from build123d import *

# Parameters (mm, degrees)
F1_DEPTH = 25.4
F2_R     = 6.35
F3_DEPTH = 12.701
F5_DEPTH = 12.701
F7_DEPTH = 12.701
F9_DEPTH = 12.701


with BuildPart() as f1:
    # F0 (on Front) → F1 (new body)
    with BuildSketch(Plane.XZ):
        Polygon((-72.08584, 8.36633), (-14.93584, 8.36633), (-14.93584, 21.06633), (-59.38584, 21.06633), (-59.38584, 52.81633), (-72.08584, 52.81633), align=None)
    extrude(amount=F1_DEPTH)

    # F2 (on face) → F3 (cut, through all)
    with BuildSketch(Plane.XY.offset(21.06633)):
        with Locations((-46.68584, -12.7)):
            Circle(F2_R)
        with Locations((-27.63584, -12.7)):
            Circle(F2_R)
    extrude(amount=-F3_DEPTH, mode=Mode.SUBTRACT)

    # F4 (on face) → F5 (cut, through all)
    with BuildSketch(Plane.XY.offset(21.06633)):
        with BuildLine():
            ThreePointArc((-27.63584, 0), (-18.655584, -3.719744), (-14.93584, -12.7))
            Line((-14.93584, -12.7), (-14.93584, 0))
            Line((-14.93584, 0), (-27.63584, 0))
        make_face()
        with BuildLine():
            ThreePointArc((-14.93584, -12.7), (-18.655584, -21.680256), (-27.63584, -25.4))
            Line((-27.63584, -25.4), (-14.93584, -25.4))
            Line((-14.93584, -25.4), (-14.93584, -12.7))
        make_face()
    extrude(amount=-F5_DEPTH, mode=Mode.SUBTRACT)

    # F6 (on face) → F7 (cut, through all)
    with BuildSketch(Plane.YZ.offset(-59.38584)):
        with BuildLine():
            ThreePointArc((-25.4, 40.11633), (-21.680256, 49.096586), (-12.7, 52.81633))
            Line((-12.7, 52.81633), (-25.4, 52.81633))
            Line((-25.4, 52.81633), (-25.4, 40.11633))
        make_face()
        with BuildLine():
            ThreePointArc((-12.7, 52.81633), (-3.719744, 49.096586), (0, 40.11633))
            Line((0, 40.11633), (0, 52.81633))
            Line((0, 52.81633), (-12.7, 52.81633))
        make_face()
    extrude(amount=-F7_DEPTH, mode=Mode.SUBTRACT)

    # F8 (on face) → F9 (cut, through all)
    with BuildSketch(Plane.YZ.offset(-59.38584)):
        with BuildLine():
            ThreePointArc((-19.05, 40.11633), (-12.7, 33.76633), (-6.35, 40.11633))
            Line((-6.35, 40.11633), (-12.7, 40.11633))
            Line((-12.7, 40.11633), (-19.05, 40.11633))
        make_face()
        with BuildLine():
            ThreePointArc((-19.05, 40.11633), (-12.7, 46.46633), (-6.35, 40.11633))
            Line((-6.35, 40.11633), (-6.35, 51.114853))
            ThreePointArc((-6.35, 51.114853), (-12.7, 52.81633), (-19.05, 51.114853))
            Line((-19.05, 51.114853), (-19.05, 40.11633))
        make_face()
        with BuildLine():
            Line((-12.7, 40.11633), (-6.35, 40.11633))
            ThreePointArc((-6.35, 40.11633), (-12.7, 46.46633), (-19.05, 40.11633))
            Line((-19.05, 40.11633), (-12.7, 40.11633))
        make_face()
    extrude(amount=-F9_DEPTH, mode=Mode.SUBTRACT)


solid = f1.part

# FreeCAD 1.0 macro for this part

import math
import FreeCAD as App
import Part
import Sketcher
Q = App.Units.Quantity


def add_polygon(sketch, points):
    """Adds a closed chain of lines whose ends are joined by coincident constraints."""
    first, n = sketch.GeometryCount, len(points)
    for a, b in zip(points, points[1:] + points[:1]):
        sketch.addGeometry(Part.LineSegment(App.Vector(*a, 0), App.Vector(*b, 0)), False)
    for i in range(n):
        sketch.addConstraint(Sketcher.Constraint("Coincident", first + i, 2, first + (i + 1) % n, 1))

doc = App.newDocument("Part")
body = doc.addObject("PartDesign::Body", "Body")

# Sketch on XZ plane
sketch1 = doc.addObject("Sketcher::SketchObject", "Sketch")
body.addObject(sketch1)
sketch1.AttachmentSupport = (doc.XZ_Plane, [""])
sketch1.MapMode = "FlatFace"
add_polygon(sketch1, [(-72, 8), (-15, 8), (-15, 21), (-59, 21), (-59, 53), (-72, 53)])  # lines 0-5
sketch1.addConstraint([
    Sketcher.Constraint("Horizontal", 0),
    Sketcher.Constraint("Vertical", 1),
    Sketcher.Constraint("Horizontal", 2),
    Sketcher.Constraint("Vertical", 3),
    Sketcher.Constraint("Horizontal", 4),
    Sketcher.Constraint("Vertical", 5),
    Sketcher.Constraint("Equal", 4, 1),
    Sketcher.Constraint("Equal", 2, 5),
    Sketcher.Constraint("DistanceX", 4, 2, 4, 1, Q("0.5 in")),
    Sketcher.Constraint("DistanceX", 0, 1, 0, 2, Q("2.25 in")),
    Sketcher.Constraint("DistanceX", 0, 2, -1, 1, Q("14.93584 mm")),
    Sketcher.Constraint("DistanceY", -1, 1, 0, 2, Q("8.36633 mm")),
])
pad1 = doc.addObject("PartDesign::Pad", "Pad")
body.addObject(pad1)
pad1.Profile = sketch1
pad1.Length = Q("1 in")

# Sketch on XY plane
sketch2 = doc.addObject("Sketcher::SketchObject", "Sketch001")
body.addObject(sketch2)
sketch2.AttachmentSupport = (doc.XY_Plane, [""])
sketch2.MapMode = "FlatFace"
sketch2.AttachmentOffset = App.Placement(App.Vector(0, 0, 21.06633), App.Rotation())
sketch2.addGeometry([
    Part.Circle(App.Vector(-47, -13, 0), App.Vector(0, 0, 1), 6),
    Part.Circle(App.Vector(-28, -13, 0), App.Vector(0, 0, 1), 6),
], False)
sketch2.addConstraint([
    Sketcher.Constraint("Equal", 0, 1),
    Sketcher.Constraint("Horizontal", 0, 3, 1, 3),
    Sketcher.Constraint("Diameter", 0, Q("0.5 in")),
    Sketcher.Constraint("DistanceY", 0, 3, -1, 1, Q("0.5 in")),
    Sketcher.Constraint("DistanceX", 0, 3, 1, 3, Q("0.75 in")),
    Sketcher.Constraint("DistanceX", 0, 3, -1, 1, Q("46.68584 mm")),
])
pocket1 = doc.addObject("PartDesign::Pocket", "Pocket")
body.addObject(pocket1)
pocket1.Profile = sketch2
pocket1.Type = "ThroughAll"

# Sketch on XY plane
sketch3 = doc.addObject("Sketcher::SketchObject", "Sketch002")
body.addObject(sketch3)
sketch3.AttachmentSupport = (doc.XY_Plane, [""])
sketch3.MapMode = "FlatFace"
sketch3.AttachmentOffset = App.Placement(App.Vector(0, 0, 21.06633), App.Rotation())
sketch3.addGeometry([
    Part.ArcOfCircle(Part.Circle(App.Vector(-28, -13, 0), App.Vector(0, 0, 1), 13), math.radians(0), math.radians(90)),  # 0
    Part.LineSegment(App.Vector(-15, -13, 0), App.Vector(-15, 0, 0)),  # 1
    Part.LineSegment(App.Vector(-15, 0, 0), App.Vector(-28, 0, 0)),  # 2
    Part.ArcOfCircle(Part.Circle(App.Vector(-28, -13, 0), App.Vector(0, 0, 1), 13), math.radians(-90), math.radians(0)),  # 3
    Part.LineSegment(App.Vector(-28, -25, 0), App.Vector(-15, -25, 0)),  # 4
    Part.LineSegment(App.Vector(-15, -25, 0), App.Vector(-15, -13, 0)),  # 5
], False)
sketch3.addConstraint([
    Sketcher.Constraint("Tangent", 0, 1, 1, 1),
    Sketcher.Constraint("Coincident", 1, 2, 2, 1),
    Sketcher.Constraint("Tangent", 2, 2, 0, 2),
    Sketcher.Constraint("Tangent", 3, 1, 4, 1),
    Sketcher.Constraint("Coincident", 4, 2, 5, 1),
    Sketcher.Constraint("Tangent", 5, 2, 3, 2),
    Sketcher.Constraint("Vertical", 1),
    Sketcher.Constraint("Horizontal", 2),
    Sketcher.Constraint("Horizontal", 4),
    Sketcher.Constraint("Vertical", 5),
    Sketcher.Constraint("Coincident", 3, 3, 0, 3),
    Sketcher.Constraint("Equal", 0, 3),
    Sketcher.Constraint("PointOnObject", 1, 2, -1),
    Sketcher.Constraint("Radius", 0, Q("0.5 in")),
    Sketcher.Constraint("DistanceX", 0, 3, -1, 1, Q("27.63584 mm")),
])
pocket2 = doc.addObject("PartDesign::Pocket", "Pocket001")
body.addObject(pocket2)
pocket2.Profile = sketch3
pocket2.Type = "ThroughAll"

# Sketch on YZ plane
sketch4 = doc.addObject("Sketcher::SketchObject", "Sketch003")
body.addObject(sketch4)
sketch4.AttachmentSupport = (doc.YZ_Plane, [""])
sketch4.MapMode = "FlatFace"
sketch4.AttachmentOffset = App.Placement(App.Vector(0, 0, -59.38584), App.Rotation())
sketch4.addGeometry([
    Part.ArcOfCircle(Part.Circle(App.Vector(-13, 40, 0), App.Vector(0, 0, 1), 13), math.radians(90), math.radians(180)),  # 0
    Part.LineSegment(App.Vector(-13, 53, 0), App.Vector(-25, 53, 0)),  # 1
    Part.LineSegment(App.Vector(-25, 53, 0), App.Vector(-25, 40, 0)),  # 2
    Part.ArcOfCircle(Part.Circle(App.Vector(-13, 40, 0), App.Vector(0, 0, 1), 13), math.radians(0), math.radians(90)),  # 3
    Part.LineSegment(App.Vector(0, 40, 0), App.Vector(0, 53, 0)),  # 4
    Part.LineSegment(App.Vector(0, 53, 0), App.Vector(-13, 53, 0)),  # 5
], False)
sketch4.addConstraint([
    Sketcher.Constraint("Tangent", 0, 1, 1, 1),
    Sketcher.Constraint("Coincident", 1, 2, 2, 1),
    Sketcher.Constraint("Tangent", 2, 2, 0, 2),
    Sketcher.Constraint("Tangent", 3, 1, 4, 1),
    Sketcher.Constraint("Coincident", 4, 2, 5, 1),
    Sketcher.Constraint("Tangent", 5, 2, 3, 2),
    Sketcher.Constraint("Horizontal", 1),
    Sketcher.Constraint("Vertical", 2),
    Sketcher.Constraint("Vertical", 4),
    Sketcher.Constraint("Horizontal", 5),
    Sketcher.Constraint("Coincident", 3, 3, 0, 3),
    Sketcher.Constraint("Equal", 0, 3),
    Sketcher.Constraint("PointOnObject", 3, 1, -2),
    Sketcher.Constraint("Radius", 0, Q("0.5 in")),
    Sketcher.Constraint("DistanceY", -1, 1, 0, 3, Q("40.11633 mm")),
])
pocket3 = doc.addObject("PartDesign::Pocket", "Pocket002")
body.addObject(pocket3)
pocket3.Profile = sketch4
pocket3.Type = "ThroughAll"

# Sketch on YZ plane
sketch5 = doc.addObject("Sketcher::SketchObject", "Sketch004")
body.addObject(sketch5)
sketch5.AttachmentSupport = (doc.YZ_Plane, [""])
sketch5.MapMode = "FlatFace"
sketch5.AttachmentOffset = App.Placement(App.Vector(0, 0, -59.38584), App.Rotation())
sketch5.addGeometry([
    Part.ArcOfCircle(Part.Circle(App.Vector(-13, 40, 0), App.Vector(0, 0, 1), 6), math.radians(180), math.radians(360)),
    Part.LineSegment(App.Vector(-6, 40, 0), App.Vector(-6, 51, 0)),
    Part.ArcOfCircle(Part.Circle(App.Vector(-13, 40, 0), App.Vector(0, 0, 1), 13), math.radians(60), math.radians(120)),
    Part.LineSegment(App.Vector(-19, 51, 0), App.Vector(-19, 40, 0)),
], False)
sketch5.addConstraint([
    Sketcher.Constraint("Tangent", 0, 2, 1, 1),
    Sketcher.Constraint("Coincident", 1, 2, 2, 1),
    Sketcher.Constraint("Coincident", 2, 2, 3, 1),
    Sketcher.Constraint("Tangent", 3, 2, 0, 1),
    Sketcher.Constraint("Vertical", 1),
    Sketcher.Constraint("Vertical", 3),
    Sketcher.Constraint("Coincident", 2, 3, 0, 3),
    Sketcher.Constraint("Radius", 2, Q("0.5000001 in")),
    Sketcher.Constraint("Radius", 0, Q("0.25 in")),
    Sketcher.Constraint("DistanceX", 0, 3, -1, 1, Q("0.5 in")),
    Sketcher.Constraint("DistanceY", -1, 1, 0, 3, Q("40.11633 mm")),
])
pocket4 = doc.addObject("PartDesign::Pocket", "Pocket003")
body.addObject(pocket4)
pocket4.Profile = sketch5
pocket4.Type = "ThroughAll"

doc.recompute()
